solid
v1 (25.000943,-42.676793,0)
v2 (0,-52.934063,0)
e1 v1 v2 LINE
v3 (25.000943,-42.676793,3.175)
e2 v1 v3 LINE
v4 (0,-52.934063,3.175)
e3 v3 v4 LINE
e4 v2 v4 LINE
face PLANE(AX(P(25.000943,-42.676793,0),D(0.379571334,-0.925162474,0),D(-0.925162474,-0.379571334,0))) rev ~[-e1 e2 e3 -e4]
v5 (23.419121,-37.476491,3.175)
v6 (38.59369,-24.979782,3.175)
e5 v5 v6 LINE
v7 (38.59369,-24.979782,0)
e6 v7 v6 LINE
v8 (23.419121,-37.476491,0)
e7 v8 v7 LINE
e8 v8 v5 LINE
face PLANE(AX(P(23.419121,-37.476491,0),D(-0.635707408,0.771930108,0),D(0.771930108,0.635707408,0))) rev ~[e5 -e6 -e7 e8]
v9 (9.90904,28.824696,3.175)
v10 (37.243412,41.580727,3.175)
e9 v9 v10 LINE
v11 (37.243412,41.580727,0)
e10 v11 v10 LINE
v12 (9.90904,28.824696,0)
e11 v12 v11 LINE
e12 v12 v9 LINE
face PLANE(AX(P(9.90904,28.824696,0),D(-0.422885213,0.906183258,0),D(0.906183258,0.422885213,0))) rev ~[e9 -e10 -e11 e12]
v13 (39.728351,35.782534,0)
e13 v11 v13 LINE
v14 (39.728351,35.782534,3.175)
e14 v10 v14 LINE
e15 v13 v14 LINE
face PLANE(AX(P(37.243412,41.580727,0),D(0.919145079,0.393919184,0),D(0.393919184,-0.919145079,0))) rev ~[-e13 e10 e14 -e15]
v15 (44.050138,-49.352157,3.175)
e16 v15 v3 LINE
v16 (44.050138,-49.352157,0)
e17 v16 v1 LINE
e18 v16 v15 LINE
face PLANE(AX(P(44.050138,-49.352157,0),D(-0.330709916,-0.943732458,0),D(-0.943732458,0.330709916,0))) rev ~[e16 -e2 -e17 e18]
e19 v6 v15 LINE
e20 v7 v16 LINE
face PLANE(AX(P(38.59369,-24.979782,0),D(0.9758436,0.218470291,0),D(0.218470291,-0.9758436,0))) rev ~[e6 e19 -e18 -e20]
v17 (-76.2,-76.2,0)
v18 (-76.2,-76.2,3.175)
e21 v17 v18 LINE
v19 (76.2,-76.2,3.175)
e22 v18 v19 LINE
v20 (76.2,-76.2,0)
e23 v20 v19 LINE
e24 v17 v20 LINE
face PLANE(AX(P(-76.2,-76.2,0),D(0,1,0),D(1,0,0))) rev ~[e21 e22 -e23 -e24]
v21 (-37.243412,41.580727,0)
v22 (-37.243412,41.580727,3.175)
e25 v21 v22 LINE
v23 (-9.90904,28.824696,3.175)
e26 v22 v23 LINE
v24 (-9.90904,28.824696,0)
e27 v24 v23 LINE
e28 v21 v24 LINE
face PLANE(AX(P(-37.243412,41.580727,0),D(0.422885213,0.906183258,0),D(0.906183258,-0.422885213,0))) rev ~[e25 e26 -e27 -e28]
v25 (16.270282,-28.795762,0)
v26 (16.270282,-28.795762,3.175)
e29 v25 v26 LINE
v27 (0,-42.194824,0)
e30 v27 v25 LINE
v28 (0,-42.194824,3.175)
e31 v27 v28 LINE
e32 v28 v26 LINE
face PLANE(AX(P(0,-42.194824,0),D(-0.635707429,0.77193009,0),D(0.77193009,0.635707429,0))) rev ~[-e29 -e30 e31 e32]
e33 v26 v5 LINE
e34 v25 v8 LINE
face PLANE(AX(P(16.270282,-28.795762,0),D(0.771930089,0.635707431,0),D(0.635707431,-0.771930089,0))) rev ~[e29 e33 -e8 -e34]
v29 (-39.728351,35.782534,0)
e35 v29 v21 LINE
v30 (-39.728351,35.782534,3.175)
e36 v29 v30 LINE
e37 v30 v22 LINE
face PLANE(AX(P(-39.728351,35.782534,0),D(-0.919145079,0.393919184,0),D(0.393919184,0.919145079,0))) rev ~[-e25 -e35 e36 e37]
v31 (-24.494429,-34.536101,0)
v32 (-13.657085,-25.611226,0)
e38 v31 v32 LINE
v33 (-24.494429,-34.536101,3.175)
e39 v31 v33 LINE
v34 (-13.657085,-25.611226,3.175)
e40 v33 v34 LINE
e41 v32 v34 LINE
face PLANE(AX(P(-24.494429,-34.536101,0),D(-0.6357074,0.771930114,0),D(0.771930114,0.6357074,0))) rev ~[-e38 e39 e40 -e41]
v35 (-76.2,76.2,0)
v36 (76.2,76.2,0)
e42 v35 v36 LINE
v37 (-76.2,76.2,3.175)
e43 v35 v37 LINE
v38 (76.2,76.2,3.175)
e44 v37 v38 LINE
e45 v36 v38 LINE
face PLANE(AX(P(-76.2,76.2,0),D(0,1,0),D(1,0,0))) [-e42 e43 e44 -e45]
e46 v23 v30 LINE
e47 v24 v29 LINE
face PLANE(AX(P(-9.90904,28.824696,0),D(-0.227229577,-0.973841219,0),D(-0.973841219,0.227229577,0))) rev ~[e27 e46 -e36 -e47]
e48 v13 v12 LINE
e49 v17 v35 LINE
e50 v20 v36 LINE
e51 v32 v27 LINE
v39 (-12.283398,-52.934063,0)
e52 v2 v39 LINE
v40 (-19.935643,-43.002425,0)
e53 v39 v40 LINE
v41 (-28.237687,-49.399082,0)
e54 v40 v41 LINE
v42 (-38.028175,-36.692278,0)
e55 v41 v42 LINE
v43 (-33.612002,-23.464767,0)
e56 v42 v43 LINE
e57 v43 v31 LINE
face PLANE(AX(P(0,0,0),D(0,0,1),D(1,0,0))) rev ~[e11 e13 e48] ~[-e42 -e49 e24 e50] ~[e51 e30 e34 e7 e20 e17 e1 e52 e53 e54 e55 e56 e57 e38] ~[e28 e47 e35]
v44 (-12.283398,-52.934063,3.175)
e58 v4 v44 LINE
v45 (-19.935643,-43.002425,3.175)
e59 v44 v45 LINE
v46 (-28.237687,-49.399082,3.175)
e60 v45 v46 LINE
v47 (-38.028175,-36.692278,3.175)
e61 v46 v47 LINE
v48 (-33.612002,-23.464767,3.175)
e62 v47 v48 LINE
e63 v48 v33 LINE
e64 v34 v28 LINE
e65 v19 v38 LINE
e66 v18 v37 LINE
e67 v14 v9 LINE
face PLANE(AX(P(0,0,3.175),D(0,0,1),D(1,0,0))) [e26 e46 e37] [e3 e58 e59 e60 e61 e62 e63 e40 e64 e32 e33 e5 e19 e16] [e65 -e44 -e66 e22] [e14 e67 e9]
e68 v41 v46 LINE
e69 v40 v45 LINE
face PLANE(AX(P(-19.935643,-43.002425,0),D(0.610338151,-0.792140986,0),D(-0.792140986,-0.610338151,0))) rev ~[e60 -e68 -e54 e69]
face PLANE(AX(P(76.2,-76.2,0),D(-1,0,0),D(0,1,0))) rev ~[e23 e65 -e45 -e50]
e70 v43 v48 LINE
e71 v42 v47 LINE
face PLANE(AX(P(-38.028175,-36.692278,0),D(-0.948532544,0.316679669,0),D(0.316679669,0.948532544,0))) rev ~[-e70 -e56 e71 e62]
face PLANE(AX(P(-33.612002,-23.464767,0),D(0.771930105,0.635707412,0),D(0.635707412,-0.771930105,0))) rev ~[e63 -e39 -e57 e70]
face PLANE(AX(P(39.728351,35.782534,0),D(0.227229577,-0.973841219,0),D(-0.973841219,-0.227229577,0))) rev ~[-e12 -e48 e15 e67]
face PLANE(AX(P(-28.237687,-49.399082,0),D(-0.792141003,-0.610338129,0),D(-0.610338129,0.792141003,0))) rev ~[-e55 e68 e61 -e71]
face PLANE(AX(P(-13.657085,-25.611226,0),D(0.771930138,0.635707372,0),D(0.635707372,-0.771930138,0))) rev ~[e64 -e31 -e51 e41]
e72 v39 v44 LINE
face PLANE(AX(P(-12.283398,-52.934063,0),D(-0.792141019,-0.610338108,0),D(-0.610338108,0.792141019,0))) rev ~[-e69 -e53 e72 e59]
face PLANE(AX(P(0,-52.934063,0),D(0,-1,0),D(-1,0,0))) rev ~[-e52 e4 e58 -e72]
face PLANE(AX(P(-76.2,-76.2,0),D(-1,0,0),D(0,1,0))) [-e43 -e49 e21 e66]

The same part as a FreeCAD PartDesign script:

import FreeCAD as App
import Part
import Sketcher
from FreeCAD import Vector
Q = App.Units.Quantity

doc = App.newDocument("Part")
body = doc.addObject("PartDesign::Body", "Body")

sketch1 = body.newObject("Sketcher::SketchObject", "Sketch")
sketch1.AttachmentSupport = (doc.getObject("XY_Plane"), [""])
sketch1.MapMode = "FlatFace"
sketch1.addGeometry([
    Part.LineSegment(Vector(-76.2, 76.2, 0), Vector(-76.2, -76.2, 0)),
    Part.LineSegment(Vector(-76.2, -76.2, 0), Vector(76.2, -76.2, 0)),
    Part.LineSegment(Vector(76.2, -76.2, 0), Vector(76.2, 76.2, 0)),
    Part.LineSegment(Vector(76.2, 76.2, 0), Vector(-76.2, 76.2, 0)),
    Part.LineSegment(Vector(-28.237687, -49.399082, 0), Vector(-38.028175, -36.692278, 0)),
    Part.LineSegment(Vector(-38.028175, -36.692278, 0), Vector(-33.612002, -23.464767, 0)),
    Part.LineSegment(Vector(-33.612002, -23.464767, 0), Vector(-24.494429, -34.536101, 0)),
    Part.LineSegment(Vector(-24.494429, -34.536101, 0), Vector(-13.657085, -25.611226, 0)),
    Part.LineSegment(Vector(-13.657085, -25.611226, 0), Vector(0, -42.194824, 0)),
    Part.LineSegment(Vector(0, -42.194824, 0), Vector(16.270282, -28.795762, 0)),
    Part.LineSegment(Vector(16.270282, -28.795762, 0), Vector(23.419121, -37.476491, 0)),
    Part.LineSegment(Vector(23.419121, -37.476491, 0), Vector(38.59369, -24.979782, 0)),
    Part.LineSegment(Vector(38.59369, -24.979782, 0), Vector(44.050138, -49.352157, 0)),
    Part.LineSegment(Vector(44.050138, -49.352157, 0), Vector(25.000943, -42.676793, 0)),
    Part.LineSegment(Vector(25.000943, -42.676793, 0), Vector(0, -52.934063, 0)),
    Part.LineSegment(Vector(0, -52.934063, 0), Vector(-12.283398, -52.934063, 0)),
    Part.LineSegment(Vector(-12.283398, -52.934063, 0), Vector(-19.935643, -43.002425, 0)),
    Part.LineSegment(Vector(-19.935643, -43.002425, 0), Vector(-28.237687, -49.399082, 0)),
    Part.LineSegment(Vector(-9.90904, 28.824696, 0), Vector(-39.728351, 35.782534, 0)),
    Part.LineSegment(Vector(-39.728351, 35.782534, 0), Vector(-37.243412, 41.580727, 0)),
    Part.LineSegment(Vector(-37.243412, 41.580727, 0), Vector(-9.90904, 28.824696, 0)),
    Part.LineSegment(Vector(37.243412, 41.580727, 0), Vector(39.728351, 35.782534, 0)),
    Part.LineSegment(Vector(39.728351, 35.782534, 0), Vector(9.90904, 28.824696, 0)),
    Part.LineSegment(Vector(9.90904, 28.824696, 0), Vector(37.243412, 41.580727, 0)),
], False)
sketch1.addConstraint([
    Sketcher.Constraint("Coincident", 0, 2, 1, 1),
    Sketcher.Constraint("Coincident", 1, 2, 2, 1),
    Sketcher.Constraint("Coincident", 2, 2, 3, 1),
    Sketcher.Constraint("Coincident", 3, 2, 0, 1),
    Sketcher.Constraint("Coincident", 4, 2, 5, 1),
    Sketcher.Constraint("Coincident", 5, 2, 6, 1),
    Sketcher.Constraint("Coincident", 6, 2, 7, 1),
    Sketcher.Constraint("Coincident", 7, 2, 8, 1),
    Sketcher.Constraint("Coincident", 8, 2, 9, 1),
    Sketcher.Constraint("Coincident", 9, 2, 10, 1),
    Sketcher.Constraint("Coincident", 10, 2, 11, 1),
    Sketcher.Constraint("Coincident", 11, 2, 12, 1),
    Sketcher.Constraint("Coincident", 12, 2, 13, 1),
    Sketcher.Constraint("Coincident", 13, 2, 14, 1),
    Sketcher.Constraint("Coincident", 14, 2, 15, 1),
    Sketcher.Constraint("Coincident", 15, 2, 16, 1),
    Sketcher.Constraint("Coincident", 16, 2, 17, 1),
    Sketcher.Constraint("Coincident", 17, 2, 4, 1),
    Sketcher.Constraint("Coincident", 18, 2, 19, 1),
    Sketcher.Constraint("Coincident", 19, 2, 20, 1),
    Sketcher.Constraint("Coincident", 20, 2, 18, 1),
    Sketcher.Constraint("Coincident", 21, 2, 22, 1),
    Sketcher.Constraint("Coincident", 22, 2, 23, 1),
    Sketcher.Constraint("Coincident", 23, 2, 21, 1),
    Sketcher.Constraint("Vertical", 0),
    Sketcher.Constraint("Horizontal", 1),
    Sketcher.Constraint("Vertical", 2),
    Sketcher.Constraint("Horizontal", 3),
    Sketcher.Constraint("Horizontal", 15),
    Sketcher.Constraint("Symmetric", 0, 2, 2, 2, -1, 1),
    Sketcher.Constraint("Symmetric", 18, 2, 21, 2, -2),
    Sketcher.Constraint("Symmetric", 20, 2, 22, 2, -2),
    Sketcher.Constraint("Symmetric", 19, 2, 23, 2, -2),
    Sketcher.Constraint("PointOnObject", 8, 2, -2),
    Sketcher.Constraint("PointOnObject", 14, 2, -2),
    Sketcher.Constraint("Perpendicular", 6, 7),
    Sketcher.Constraint("Perpendicular", 7, 8),
    Sketcher.Constraint("Perpendicular", 8, 9),
    Sketcher.Constraint("Perpendicular", 9, 10),
    Sketcher.Constraint("Perpendicular", 10, 11),
    Sketcher.Constraint("Parallel", 4, 16),
    Sketcher.Constraint("Perpendicular", 16, 17),
    Sketcher.Constraint("Equal", 3, 0),
    Sketcher.Constraint("DistanceX", 1, 1, 1, 2, Q("6 in")),
    Sketcher.Constraint("Distance", 14, 27.0233),
    Sketcher.Constraint("Distance", 18, 30.620301),
    Sketcher.Constraint("DistanceX", 5, 2, -1, 1, 33.612002),
    Sketcher.Constraint("DistanceY", 6, 2, -1, 1, 34.536101),
    Sketcher.Constraint("DistanceY", 14, 2, 9, 2, 24.138301),
    Sketcher.Constraint("DistanceY", 16, 2, 7, 2, 17.391199),
    Sketcher.Constraint("DistanceY", 16, 2, 8, 2, 0.807601),
    Sketcher.Constraint("DistanceY", 5, 2, 18, 2, 59.247301),
    Sketcher.Constraint("Distance", 4, 16.041089),
    Sketcher.Constraint("Distance", 7, 14.039281),
    Sketcher.Constraint("Distance", 8, 21.483289),
    Sketcher.Constraint("DistanceX", 15, 2, 15, 1, 12.283398),
    Sketcher.Constraint("DistanceY", 4, 2, -1, 1, 36.692278),
    Sketcher.Constraint("DistanceY", 9, 2, -1, 1, 28.795762),
    Sketcher.Constraint("DistanceX", -1, 1, 10, 2, 23.419121),
    Sketcher.Constraint("DistanceX", -1, 1, 11, 2, 38.59369),
    Sketcher.Constraint("DistanceX", 18, 2, -1, 1, 39.728351),
    Sketcher.Constraint("DistanceX", 20, 2, -1, 1, 9.90904),
    Sketcher.Constraint("DistanceX", 4, 2, 7, 2, 24.37109),
    Sketcher.Constraint("DistanceX", 10, 2, 13, 2, 1.581822),
    Sketcher.Constraint("DistanceX", 18, 2, 19, 2, 2.484939),
    Sketcher.Constraint("DistanceY", 6, 2, 19, 2, 76.116828),
    Sketcher.Constraint("Distance", 12, 24.975698),
    Sketcher.Constraint("Distance", 13, 20.184953),
])
pad1 = body.newObject("PartDesign::Pad", "Pad")
pad1.Profile = sketch1
pad1.Length = Q("0.125 in")

doc.recompute()
